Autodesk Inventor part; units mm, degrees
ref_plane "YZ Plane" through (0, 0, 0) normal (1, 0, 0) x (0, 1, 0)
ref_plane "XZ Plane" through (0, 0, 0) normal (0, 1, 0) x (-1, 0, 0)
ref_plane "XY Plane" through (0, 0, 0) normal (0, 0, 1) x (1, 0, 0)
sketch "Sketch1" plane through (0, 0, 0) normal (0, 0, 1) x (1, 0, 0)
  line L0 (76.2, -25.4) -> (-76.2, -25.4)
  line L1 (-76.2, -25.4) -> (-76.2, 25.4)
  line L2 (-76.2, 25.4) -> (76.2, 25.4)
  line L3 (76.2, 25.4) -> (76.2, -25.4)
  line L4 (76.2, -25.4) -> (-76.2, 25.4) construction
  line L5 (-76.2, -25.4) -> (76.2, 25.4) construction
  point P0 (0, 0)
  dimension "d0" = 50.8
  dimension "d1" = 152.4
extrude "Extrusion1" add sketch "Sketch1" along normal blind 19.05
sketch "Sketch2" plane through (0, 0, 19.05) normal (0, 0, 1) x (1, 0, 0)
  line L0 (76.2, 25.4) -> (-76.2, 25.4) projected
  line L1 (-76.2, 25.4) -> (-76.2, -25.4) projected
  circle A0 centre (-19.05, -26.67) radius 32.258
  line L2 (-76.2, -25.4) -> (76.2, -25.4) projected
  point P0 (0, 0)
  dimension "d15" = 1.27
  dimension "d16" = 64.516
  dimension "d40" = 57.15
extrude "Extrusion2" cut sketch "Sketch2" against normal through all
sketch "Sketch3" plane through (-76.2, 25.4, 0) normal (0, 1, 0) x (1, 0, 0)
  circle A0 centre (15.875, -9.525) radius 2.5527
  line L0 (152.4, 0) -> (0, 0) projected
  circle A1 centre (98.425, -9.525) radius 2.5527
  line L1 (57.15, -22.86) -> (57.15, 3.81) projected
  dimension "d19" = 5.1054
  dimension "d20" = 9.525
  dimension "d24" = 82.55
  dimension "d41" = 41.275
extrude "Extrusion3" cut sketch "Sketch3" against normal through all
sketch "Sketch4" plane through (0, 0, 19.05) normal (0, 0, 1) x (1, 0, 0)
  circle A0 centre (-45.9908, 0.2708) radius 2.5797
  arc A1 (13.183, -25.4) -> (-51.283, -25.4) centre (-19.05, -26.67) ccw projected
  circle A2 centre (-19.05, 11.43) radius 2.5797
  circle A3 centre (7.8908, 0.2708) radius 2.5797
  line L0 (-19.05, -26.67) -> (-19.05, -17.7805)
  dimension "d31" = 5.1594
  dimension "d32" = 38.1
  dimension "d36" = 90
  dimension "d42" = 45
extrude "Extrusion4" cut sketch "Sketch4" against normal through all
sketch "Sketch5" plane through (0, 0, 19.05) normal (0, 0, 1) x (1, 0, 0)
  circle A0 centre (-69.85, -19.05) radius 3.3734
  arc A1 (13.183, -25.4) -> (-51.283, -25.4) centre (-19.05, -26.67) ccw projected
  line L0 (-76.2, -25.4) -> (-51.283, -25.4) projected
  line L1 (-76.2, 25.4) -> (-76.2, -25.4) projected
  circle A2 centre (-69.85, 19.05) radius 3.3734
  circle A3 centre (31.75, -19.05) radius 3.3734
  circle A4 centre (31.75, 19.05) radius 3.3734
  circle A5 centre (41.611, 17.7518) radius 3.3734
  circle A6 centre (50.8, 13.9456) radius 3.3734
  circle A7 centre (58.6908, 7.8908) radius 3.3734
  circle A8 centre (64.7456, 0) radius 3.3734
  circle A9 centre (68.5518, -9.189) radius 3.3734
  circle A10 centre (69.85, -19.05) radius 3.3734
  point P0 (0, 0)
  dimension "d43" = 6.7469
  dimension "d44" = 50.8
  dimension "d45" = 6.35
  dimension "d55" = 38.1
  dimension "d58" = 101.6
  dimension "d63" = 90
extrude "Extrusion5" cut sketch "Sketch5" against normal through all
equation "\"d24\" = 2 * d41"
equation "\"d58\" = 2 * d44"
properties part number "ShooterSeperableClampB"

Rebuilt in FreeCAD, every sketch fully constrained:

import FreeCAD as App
import Part
import Sketcher
Q = App.Units.Quantity


def add_polygon(sketch, points):
    """Adds a closed chain of lines whose ends are joined by coincident constraints."""
    first, n = sketch.GeometryCount, len(points)
    for a, b in zip(points, points[1:] + points[:1]):
        sketch.addGeometry(Part.LineSegment(App.Vector(*a, 0), App.Vector(*b, 0)), False)
    for i in range(n):
        sketch.addConstraint(Sketcher.Constraint("Coincident", first + i, 2, first + (i + 1) % n, 1))

doc = App.newDocument("Part")
params = doc.addObject("Spreadsheet::Sheet", "Params")
for row, (alias, value) in enumerate([
    ("sketch1_width", "6 in"),
    ("sketch1_height", "2 in"),
    ("pad1_length", "0.75 in"),
    ("sketch2_diameter", "2.54 in"),
    ("sketch3_diameter", "0.201 in"),
    ("sketch4_diameter", "0.203126 in"),
    ("sketch5_diameter", "0.265622 in"),
], start=1):
    params.set(f"A{row}", alias)
    params.set(f"B{row}", "=" + value)
    params.setAlias(f"B{row}", alias)

body = doc.addObject("PartDesign::Body", "Body")

sketch1 = body.newObject("Sketcher::SketchObject", "Sketch")
sketch1.AttachmentSupport = (doc.getObject("XY_Plane"), [""])
sketch1.MapMode = "FlatFace"
add_polygon(sketch1, [(-76, -25), (76, -25), (76, 25), (-76, 25)])
sketch1.addConstraint([
    Sketcher.Constraint("Horizontal", 0),
    Sketcher.Constraint("Vertical", 1),
    Sketcher.Constraint("Horizontal", 2),
    Sketcher.Constraint("Vertical", 3),
    Sketcher.Constraint("Symmetric", 0, 2, 2, 2, -1, 1),
    Sketcher.Constraint("DistanceX", 0, 1, 0, 2, Q("6 in")),
    Sketcher.Constraint("DistanceY", 1, 1, 1, 2, Q("2 in")),
])
sketch1.setExpression("Constraints[9]", "Params.sketch1_width")
sketch1.setExpression("Constraints[10]", "Params.sketch1_height")
pad1 = body.newObject("PartDesign::Pad", "Pad")
pad1.Profile = sketch1
pad1.setExpression("Length", "Params.pad1_length")

sketch2 = body.newObject("Sketcher::SketchObject", "Sketch001")
sketch2.AttachmentSupport = (doc.getObject("XY_Plane"), [""])
sketch2.MapMode = "FlatFace"
sketch2.AttachmentOffset = App.Placement(App.Vector(0, 0, 0.75 * 25.4), App.Rotation())
sketch2.addGeometry(Part.Circle(App.Vector(-19, -27, 0), App.Vector(0, 0, 1), 32), False)
sketch2.addConstraint([
    Sketcher.Constraint("Diameter", 0, Q("2.54 in")),
    Sketcher.Constraint("DistanceX", 0, 3, -1, 1, Q("0.75 in")),
    Sketcher.Constraint("DistanceY", 0, 3, -1, 1, Q("1.05 in")),
])
sketch2.setExpression("Constraints[0]", "Params.sketch2_diameter")
pocket1 = body.newObject("PartDesign::Pocket", "Pocket")
pocket1.Profile = sketch2
pocket1.Type = "ThroughAll"

sketch3 = body.newObject("Sketcher::SketchObject", "Sketch002")
sketch3.AttachmentSupport = (doc.getObject("XZ_Plane"), [""])
sketch3.MapMode = "FlatFace"
sketch3.AttachmentOffset = App.Placement(App.Vector(0, 0, -1 * 25.4), App.Rotation())
sketch3.addGeometry([
    Part.Circle(App.Vector(-60.3, 9.5, 0), App.Vector(0, 0, 1), 2.6),
    Part.Circle(App.Vector(22.2, 9.5, 0), App.Vector(0, 0, 1), 2.6),
], False)
sketch3.addConstraint([
    Sketcher.Constraint("Equal", 0, 1),
    Sketcher.Constraint("Horizontal", 0, 3, 1, 3),
    Sketcher.Constraint("Diameter", 0, Q("0.201 in")),
    Sketcher.Constraint("DistanceX", 0, 3, 1, 3, Q("3.25 in")),
    Sketcher.Constraint("DistanceY", -1, 1, 0, 3, Q("0.375 in")),
    Sketcher.Constraint("DistanceX", 0, 3, -1, 1, Q("2.375 in")),
])
sketch3.setExpression("Constraints[2]", "Params.sketch3_diameter")
pocket2 = body.newObject("PartDesign::Pocket", "Pocket001")
pocket2.Profile = sketch3
pocket2.Type = "ThroughAll"
pocket2.Reversed = True

sketch4 = body.newObject("Sketcher::SketchObject", "Sketch003")
sketch4.AttachmentSupport = (doc.getObject("XY_Plane"), [""])
sketch4.MapMode = "FlatFace"
sketch4.AttachmentOffset = App.Placement(App.Vector(0, 0, 0.75 * 25.4), App.Rotation())
sketch4.addGeometry([
    Part.Circle(App.Vector(-46, 0.3, 0), App.Vector(0, 0, 1), 2.6),
    Part.Circle(App.Vector(-19.1, 11.4, 0), App.Vector(0, 0, 1), 2.6),
    Part.Circle(App.Vector(7.9, 0.3, 0), App.Vector(0, 0, 1), 2.6),
], False)
sketch4.addConstraint([
    Sketcher.Constraint("Equal", 0, 1),
    Sketcher.Constraint("Equal", 1, 2),
    Sketcher.Constraint("Horizontal", 0, 3, 2, 3),
    Sketcher.Constraint("Diameter", 0, Q("0.203126 in")),
    Sketcher.Constraint("DistanceX", 1, 3, -1, 1, Q("0.75 in")),
    Sketcher.Constraint("DistanceY", -1, 1, 1, 3, Q("0.45 in")),
    Sketcher.Constraint("DistanceX", 0, 3, -1, 1, 45.9908),
    Sketcher.Constraint("DistanceY", -1, 1, 0, 3, 0.2708),
    Sketcher.Constraint("DistanceX", -1, 1, 2, 3, 7.8908),
])
sketch4.setExpression("Constraints[3]", "Params.sketch4_diameter")
pocket3 = body.newObject("PartDesign::Pocket", "Pocket002")
pocket3.Profile = sketch4
pocket3.Type = "ThroughAll"

sketch5 = body.newObject("Sketcher::SketchObject", "Sketch004")
sketch5.AttachmentSupport = (doc.getObject("XY_Plane"), [""])
sketch5.MapMode = "FlatFace"
sketch5.AttachmentOffset = App.Placement(App.Vector(0, 0, 0.75 * 25.4), App.Rotation())
sketch5.addGeometry([
    Part.Circle(App.Vector(-69.8, -19.1, 0), App.Vector(0, 0, 1), 3.4),
    Part.Circle(App.Vector(-69.8, 19.1, 0), App.Vector(0, 0, 1), 3.4),
    Part.Circle(App.Vector(31.8, -19.1, 0), App.Vector(0, 0, 1), 3.4),
    Part.Circle(App.Vector(31.8, 19.1, 0), App.Vector(0, 0, 1), 3.4),
    Part.Circle(App.Vector(41.6, 17.8, 0), App.Vector(0, 0, 1), 3.4),
    Part.Circle(App.Vector(50.8, 13.9, 0), App.Vector(0, 0, 1), 3.4),
    Part.Circle(App.Vector(58.7, 7.9, 0), App.Vector(0, 0, 1), 3.4),
    Part.Circle(App.Vector(64.7, 0, 0), App.Vector(0, 0, 1), 3.4),
    Part.Circle(App.Vector(68.6, -9.2, 0), App.Vector(0, 0, 1), 3.4),
    Part.Circle(App.Vector(69.8, -19.1, 0), App.Vector(0, 0, 1), 3.4),
], False)
sketch5.addConstraint([
    Sketcher.Constraint("Equal", 0, 1),
    Sketcher.Constraint("Equal", 1, 2),
    Sketcher.Constraint("Equal", 2, 3),
    Sketcher.Constraint("Equal", 3, 4),
    Sketcher.Constraint("Equal", 4, 5),
    Sketcher.Constraint("Equal", 5, 6),
    Sketcher.Constraint("Equal", 6, 7),
    Sketcher.Constraint("Equal", 7, 8),
    Sketcher.Constraint("Equal", 8, 9),
    Sketcher.Constraint("Symmetric", 1, 3, 9, 3, -1, 1),
    Sketcher.Constraint("Symmetric", 0, 3, 9, 3, -2),
    Sketcher.Constraint("Symmetric", 2, 3, 3, 3, -1),
    Sketcher.Constraint("PointOnObject", 7, 3, -1),
    Sketcher.Constraint("Horizontal", 0, 3, 2, 3),
    Sketcher.Constraint("Diameter", 0, Q("0.265622 in")),
    Sketcher.Constraint("DistanceX", -1, 1, 5, 3, Q("2 in")),
    Sketcher.Constraint("DistanceX", 0, 3, 2, 3, Q("4 in")),
    Sketcher.Constraint("DistanceY", 0, 3, 1, 3, Q("1.5 in")),
    Sketcher.Constraint("DistanceX", 2, 3, 9, 3, Q("1.5 in")),
    Sketcher.Constraint("DistanceY", -1, 1, 4, 3, Q("0.6989 in")),
    Sketcher.Constraint("DistanceX", -1, 1, 8, 3, Q("2.6989 in")),
    Sketcher.Constraint("DistanceX", 4, 3, 7, 3, Q("0.9108 in")),
    Sketcher.Constraint("DistanceY", 8, 3, 5, 3, Q("0.9108 in")),
    Sketcher.Constraint("DistanceX", -1, 1, 4, 3, 41.611),
    Sketcher.Constraint("DistanceY", -1, 1, 5, 3, 13.9456),
    Sketcher.Constraint("DistanceX", -1, 1, 6, 3, 58.6908),
    Sketcher.Constraint("DistanceY", -1, 1, 6, 3, 7.8908),
])
sketch5.setExpression("Constraints[14]", "Params.sketch5_diameter")
pocket4 = body.newObject("PartDesign::Pocket", "Pocket003")
pocket4.Profile = sketch5
pocket4.Type = "ThroughAll"

doc.recompute()
